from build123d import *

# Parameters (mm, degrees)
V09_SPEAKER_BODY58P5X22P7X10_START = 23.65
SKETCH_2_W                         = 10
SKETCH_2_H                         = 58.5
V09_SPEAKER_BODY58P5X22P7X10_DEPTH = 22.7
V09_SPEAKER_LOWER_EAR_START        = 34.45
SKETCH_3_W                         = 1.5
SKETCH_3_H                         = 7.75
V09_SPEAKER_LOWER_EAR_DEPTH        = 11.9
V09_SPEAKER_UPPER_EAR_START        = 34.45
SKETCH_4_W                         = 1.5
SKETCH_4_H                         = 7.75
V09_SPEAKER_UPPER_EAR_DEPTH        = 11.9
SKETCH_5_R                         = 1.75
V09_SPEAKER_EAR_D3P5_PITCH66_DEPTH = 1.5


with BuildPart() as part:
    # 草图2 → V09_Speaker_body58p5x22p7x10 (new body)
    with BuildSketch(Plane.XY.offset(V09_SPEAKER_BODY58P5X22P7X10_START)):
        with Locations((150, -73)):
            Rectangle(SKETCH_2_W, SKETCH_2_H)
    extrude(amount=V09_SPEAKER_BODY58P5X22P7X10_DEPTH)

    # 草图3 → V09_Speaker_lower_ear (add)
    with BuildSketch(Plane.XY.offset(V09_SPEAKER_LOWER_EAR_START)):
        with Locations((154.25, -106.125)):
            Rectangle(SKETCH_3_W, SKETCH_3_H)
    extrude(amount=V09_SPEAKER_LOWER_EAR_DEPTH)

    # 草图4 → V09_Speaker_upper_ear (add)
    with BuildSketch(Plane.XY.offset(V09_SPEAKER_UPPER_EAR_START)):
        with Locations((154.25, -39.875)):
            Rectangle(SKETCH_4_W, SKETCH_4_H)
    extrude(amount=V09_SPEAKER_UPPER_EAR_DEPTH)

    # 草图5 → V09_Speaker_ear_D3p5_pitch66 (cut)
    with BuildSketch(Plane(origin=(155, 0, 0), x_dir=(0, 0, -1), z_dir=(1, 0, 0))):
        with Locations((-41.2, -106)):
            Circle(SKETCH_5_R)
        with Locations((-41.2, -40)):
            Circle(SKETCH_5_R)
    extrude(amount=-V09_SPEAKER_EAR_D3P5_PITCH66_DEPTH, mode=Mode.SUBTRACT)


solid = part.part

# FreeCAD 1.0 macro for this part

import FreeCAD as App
import Part
import Sketcher
from FreeCAD import Vector


def add_polygon(sketch, points):
    """Adds a closed chain of lines whose ends are joined by coincident constraints."""
    first, n = sketch.GeometryCount, len(points)
    for a, b in zip(points, points[1:] + points[:1]):
        sketch.addGeometry(Part.LineSegment(App.Vector(*a, 0), App.Vector(*b, 0)), False)
    for i in range(n):
        sketch.addConstraint(Sketcher.Constraint("Coincident", first + i, 2, first + (i + 1) % n, 1))

doc = App.newDocument("Part")
body = doc.addObject("PartDesign::Body", "Body")

# Sketch on XY plane
sketch1 = doc.addObject("Sketcher::SketchObject", "Sketch")
body.addObject(sketch1)
sketch1.AttachmentSupport = (doc.XY_Plane, [""])
sketch1.MapMode = "FlatFace"
sketch1.AttachmentOffset = App.Placement(Vector(0, 0, 23.65), App.Rotation())
add_polygon(sketch1, [(145, -44), (145, -102), (155, -102), (155, -44)])  # lines 0-3
sketch1.addConstraint([
    Sketcher.Constraint("Vertical", 0),
    Sketcher.Constraint("Horizontal", 1),
    Sketcher.Constraint("Vertical", 2),
    Sketcher.Constraint("Horizontal", 3),
    Sketcher.Constraint("DistanceX", 1, 1, 1, 2, 10.0),
    Sketcher.Constraint("DistanceY", 0, 2, 0, 1, 58.5),
    Sketcher.Constraint("DistanceX", -1, 1, 0, 2, 145.0),
    Sketcher.Constraint("DistanceY", 0, 2, -1, 1, 102.25),
])
pad1 = doc.addObject("PartDesign::Pad", "Pad")
body.addObject(pad1)
pad1.Profile = sketch1
pad1.Length = 22.7

# Sketch on XY plane
sketch2 = doc.addObject("Sketcher::SketchObject", "Sketch001")
body.addObject(sketch2)
sketch2.AttachmentSupport = (doc.XY_Plane, [""])
sketch2.MapMode = "FlatFace"
sketch2.AttachmentOffset = App.Placement(Vector(0, 0, 34.45), App.Rotation())
add_polygon(sketch2, [(153.5, -102.2), (153.5, -110), (155, -110), (155, -102.2)])  # lines 0-3
sketch2.addConstraint([
    Sketcher.Constraint("Vertical", 0),
    Sketcher.Constraint("Horizontal", 1),
    Sketcher.Constraint("Vertical", 2),
    Sketcher.Constraint("Horizontal", 3),
    Sketcher.Constraint("DistanceX", 1, 1, 1, 2, 1.5),
    Sketcher.Constraint("DistanceY", 0, 2, -1, 1, 110.0),
    Sketcher.Constraint("DistanceX", -1, 1, 1, 2, 155.0),
    Sketcher.Constraint("DistanceY", 0, 2, 0, 1, 7.75),
])
pad2 = doc.addObject("PartDesign::Pad", "Pad001")
body.addObject(pad2)
pad2.Profile = sketch2
pad2.Length = 11.9

# Sketch on XY plane
sketch3 = doc.addObject("Sketcher::SketchObject", "Sketch002")
body.addObject(sketch3)
sketch3.AttachmentSupport = (doc.XY_Plane, [""])
sketch3.MapMode = "FlatFace"
sketch3.AttachmentOffset = App.Placement(Vector(0, 0, 34.45), App.Rotation())
add_polygon(sketch3, [(153.5, -36), (153.5, -43.8), (155, -43.8), (155, -36)])  # lines 0-3
sketch3.addConstraint([
    Sketcher.Constraint("Vertical", 0),
    Sketcher.Constraint("Horizontal", 1),
    Sketcher.Constraint("Vertical", 2),
    Sketcher.Constraint("Horizontal", 3),
    Sketcher.Constraint("DistanceX", 1, 1, 1, 2, 1.5),
    Sketcher.Constraint("DistanceX", -1, 1, 1, 2, 155.0),
    Sketcher.Constraint("DistanceY", 2, 2, -1, 1, 36.0),
    Sketcher.Constraint("DistanceY", 0, 2, 0, 1, 7.75),
])
pad3 = doc.addObject("PartDesign::Pad", "Pad002")
body.addObject(pad3)
pad3.Profile = sketch3
pad3.Length = 11.9

# Sketch on YZ plane
sketch4 = doc.addObject("Sketcher::SketchObject", "Sketch003")
body.addObject(sketch4)
sketch4.AttachmentSupport = (doc.YZ_Plane, [""])
sketch4.MapMode = "FlatFace"
sketch4.AttachmentOffset = App.Placement(Vector(0, 0, 155), App.Rotation())
sketch4.addGeometry([
    Part.Circle(Vector(-106, 41.2, 0), Vector(0, 0, 1), 1.8),
    Part.Circle(Vector(-40, 41.2, 0), Vector(0, 0, 1), 1.8),
], False)
sketch4.addConstraint([
    Sketcher.Constraint("Equal", 0, 1),
    Sketcher.Constraint("Horizontal", 0, 3, 1, 3),
    Sketcher.Constraint("Diameter", 0, 3.5),
    Sketcher.Constraint("DistanceX", 0, 3, -1, 1, 106.0),
    Sketcher.Constraint("DistanceX", 1, 3, -1, 1, 40.0),
    Sketcher.Constraint("DistanceY", -1, 1, 0, 3, 41.2),
])
pocket1 = doc.addObject("PartDesign::Pocket", "Pocket")
body.addObject(pocket1)
pocket1.Profile = sketch4
pocket1.Length = 1.5

doc.recompute()
